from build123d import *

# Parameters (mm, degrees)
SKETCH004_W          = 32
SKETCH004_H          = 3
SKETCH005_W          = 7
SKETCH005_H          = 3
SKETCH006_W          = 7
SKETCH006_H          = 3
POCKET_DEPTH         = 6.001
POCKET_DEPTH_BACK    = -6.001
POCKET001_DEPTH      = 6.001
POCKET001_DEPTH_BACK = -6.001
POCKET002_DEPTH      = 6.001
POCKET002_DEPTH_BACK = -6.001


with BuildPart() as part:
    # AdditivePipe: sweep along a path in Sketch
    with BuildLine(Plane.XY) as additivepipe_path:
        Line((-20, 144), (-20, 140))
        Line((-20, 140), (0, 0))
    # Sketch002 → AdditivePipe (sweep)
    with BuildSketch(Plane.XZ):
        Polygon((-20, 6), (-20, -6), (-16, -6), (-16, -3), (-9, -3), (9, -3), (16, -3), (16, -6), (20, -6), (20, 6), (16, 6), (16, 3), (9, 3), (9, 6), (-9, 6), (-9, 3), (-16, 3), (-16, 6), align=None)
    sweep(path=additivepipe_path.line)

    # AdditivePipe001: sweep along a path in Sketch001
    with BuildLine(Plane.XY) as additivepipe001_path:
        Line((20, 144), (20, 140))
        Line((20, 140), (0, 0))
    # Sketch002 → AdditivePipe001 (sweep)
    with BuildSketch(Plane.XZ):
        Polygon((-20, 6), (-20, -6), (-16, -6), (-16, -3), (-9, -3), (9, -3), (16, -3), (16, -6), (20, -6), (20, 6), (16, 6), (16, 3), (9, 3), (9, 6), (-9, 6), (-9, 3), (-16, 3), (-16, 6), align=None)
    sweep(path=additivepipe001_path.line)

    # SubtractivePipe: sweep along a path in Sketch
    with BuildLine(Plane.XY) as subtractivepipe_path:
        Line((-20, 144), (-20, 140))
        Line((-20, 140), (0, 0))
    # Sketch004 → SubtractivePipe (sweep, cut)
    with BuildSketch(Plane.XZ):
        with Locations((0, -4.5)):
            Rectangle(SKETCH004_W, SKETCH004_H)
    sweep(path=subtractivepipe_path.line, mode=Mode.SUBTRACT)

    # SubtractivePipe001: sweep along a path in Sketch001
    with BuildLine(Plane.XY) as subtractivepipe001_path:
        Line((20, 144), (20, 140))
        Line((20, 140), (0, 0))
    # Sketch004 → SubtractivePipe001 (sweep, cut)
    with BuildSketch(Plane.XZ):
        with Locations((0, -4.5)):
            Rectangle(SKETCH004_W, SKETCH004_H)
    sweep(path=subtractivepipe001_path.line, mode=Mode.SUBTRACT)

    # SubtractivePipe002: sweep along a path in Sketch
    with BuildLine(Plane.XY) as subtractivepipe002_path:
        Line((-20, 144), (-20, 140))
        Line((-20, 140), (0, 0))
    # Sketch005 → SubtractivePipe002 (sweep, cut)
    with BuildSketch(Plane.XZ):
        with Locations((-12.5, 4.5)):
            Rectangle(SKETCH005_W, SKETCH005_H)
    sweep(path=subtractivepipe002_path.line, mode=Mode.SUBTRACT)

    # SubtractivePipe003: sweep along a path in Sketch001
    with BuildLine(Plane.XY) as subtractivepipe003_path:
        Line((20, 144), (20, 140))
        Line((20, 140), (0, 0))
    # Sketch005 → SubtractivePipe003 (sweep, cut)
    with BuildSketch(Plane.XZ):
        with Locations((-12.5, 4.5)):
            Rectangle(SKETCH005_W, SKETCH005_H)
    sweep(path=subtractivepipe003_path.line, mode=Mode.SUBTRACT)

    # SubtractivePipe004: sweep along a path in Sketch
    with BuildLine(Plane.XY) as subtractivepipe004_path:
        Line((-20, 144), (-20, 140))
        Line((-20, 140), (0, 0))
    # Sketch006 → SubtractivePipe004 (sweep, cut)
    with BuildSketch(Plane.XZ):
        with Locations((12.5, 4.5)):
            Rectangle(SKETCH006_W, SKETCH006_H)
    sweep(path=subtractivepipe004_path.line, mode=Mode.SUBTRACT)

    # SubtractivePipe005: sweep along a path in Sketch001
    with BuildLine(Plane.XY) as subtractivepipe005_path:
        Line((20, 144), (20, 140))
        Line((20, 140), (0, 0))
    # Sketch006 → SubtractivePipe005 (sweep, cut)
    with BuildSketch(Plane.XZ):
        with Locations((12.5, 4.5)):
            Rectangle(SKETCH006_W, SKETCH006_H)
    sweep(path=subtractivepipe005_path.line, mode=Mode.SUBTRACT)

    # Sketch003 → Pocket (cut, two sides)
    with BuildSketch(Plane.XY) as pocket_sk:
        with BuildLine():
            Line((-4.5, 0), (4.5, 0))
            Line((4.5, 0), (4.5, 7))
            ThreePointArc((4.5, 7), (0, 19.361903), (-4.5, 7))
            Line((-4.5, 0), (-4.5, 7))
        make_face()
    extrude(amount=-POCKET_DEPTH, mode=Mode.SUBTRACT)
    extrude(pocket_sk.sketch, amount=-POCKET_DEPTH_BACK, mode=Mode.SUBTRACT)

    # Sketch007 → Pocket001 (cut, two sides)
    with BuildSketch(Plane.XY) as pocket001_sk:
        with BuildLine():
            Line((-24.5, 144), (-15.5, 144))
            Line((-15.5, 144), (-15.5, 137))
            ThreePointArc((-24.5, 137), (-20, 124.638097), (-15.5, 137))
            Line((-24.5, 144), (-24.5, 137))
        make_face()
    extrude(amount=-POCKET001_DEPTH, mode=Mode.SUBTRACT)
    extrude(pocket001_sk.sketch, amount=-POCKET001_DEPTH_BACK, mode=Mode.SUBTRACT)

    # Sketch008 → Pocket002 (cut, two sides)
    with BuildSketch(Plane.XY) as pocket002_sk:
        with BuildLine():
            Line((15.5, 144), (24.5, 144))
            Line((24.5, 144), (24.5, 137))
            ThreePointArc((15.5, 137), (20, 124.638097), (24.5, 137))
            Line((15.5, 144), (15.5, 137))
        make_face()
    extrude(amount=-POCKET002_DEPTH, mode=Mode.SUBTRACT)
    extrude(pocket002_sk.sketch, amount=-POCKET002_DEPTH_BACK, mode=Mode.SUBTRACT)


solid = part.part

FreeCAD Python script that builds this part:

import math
import FreeCAD as App
import Part
import Sketcher

V = App.Vector
Q = App.Units.Quantity


def add_polygon(sketch, points):
    """Adds a closed chain of lines whose ends are joined by coincident constraints."""
    first, n = sketch.GeometryCount, len(points)
    for a, b in zip(points, points[1:] + points[:1]):
        sketch.addGeometry(Part.LineSegment(App.Vector(*a, 0), App.Vector(*b, 0)), False)
    for i in range(n):
        sketch.addConstraint(Sketcher.Constraint("Coincident", first + i, 2, first + (i + 1) % n, 1))

doc = App.newDocument("Part")
body = doc.addObject("PartDesign::Body", "Body")

# Sketch on XZ plane
sketch1 = body.newObject("Sketcher::SketchObject", "Sketch")
sketch1.AttachmentSupport = (doc.getObject("XZ_Plane"), [""])
sketch1.MapMode = "FlatFace"
add_polygon(sketch1, [(-20, 6), (-20, -6), (-16, -6), (-16, -3), (16, -3), (16, -6), (20, -6), (20, 6), (16, 6), (16, 3), (9, 3), (9, 6), (-9, 6), (-9, 3), (-16, 3), (-16, 6)])  # lines 0-15
sketch1.addConstraint([
    Sketcher.Constraint("Vertical", 0),
    Sketcher.Constraint("Horizontal", 1),
    Sketcher.Constraint("Vertical", 2),
    Sketcher.Constraint("Horizontal", 3),
    Sketcher.Constraint("Vertical", 4),
    Sketcher.Constraint("Horizontal", 5),
    Sketcher.Constraint("Vertical", 6),
    Sketcher.Constraint("Horizontal", 7),
    Sketcher.Constraint("Vertical", 8),
    Sketcher.Constraint("Horizontal", 9),
    Sketcher.Constraint("Vertical", 10),
    Sketcher.Constraint("Horizontal", 11),
    Sketcher.Constraint("Vertical", 12),
    Sketcher.Constraint("Horizontal", 13),
    Sketcher.Constraint("Vertical", 14),
    Sketcher.Constraint("Horizontal", 15),
    Sketcher.Constraint("Symmetric", 0, 2, 6, 2, -1, 1),
    Sketcher.Constraint("Symmetric", 2, 2, 8, 2, -1, 1),
    Sketcher.Constraint("Symmetric", 3, 2, 13, 2, -1, 1),
    Sketcher.Constraint("Symmetric", 1, 2, 4, 2, -2),
    Sketcher.Constraint("Horizontal", 7, 2, 10, 2),
    Sketcher.Constraint("Horizontal", 11, 2, 14, 2),
    Sketcher.Constraint("Equal", 9, 13),
    Sketcher.Constraint("DistanceX", 1, 1, 1, 2, Q("4 mm")),
    Sketcher.Constraint("DistanceX", 3, 1, 3, 2, Q("32 mm")),
    Sketcher.Constraint("DistanceX", 9, 2, 9, 1, Q("7 mm")),
    Sketcher.Constraint("DistanceY", 0, 2, 0, 1, Q("12 mm")),
    Sketcher.Constraint("DistanceY", 2, 1, 2, 2, Q("3 mm")),
])

# Sketch on XY plane
sketch2 = body.newObject("Sketcher::SketchObject", "Sketch001")
sketch2.AttachmentSupport = (doc.getObject("XY_Plane"), [""])
sketch2.MapMode = "FlatFace"
sketch2.addGeometry([
    Part.LineSegment(V(-20, 144, 0), V(-20, 140, 0)),
    Part.LineSegment(V(-20, 140, 0), V(0, 0, 0)),
], False)
sketch2.addConstraint([
    Sketcher.Constraint("Coincident", 0, 2, 1, 1),
    Sketcher.Constraint("Vertical", 0),
    Sketcher.Constraint("Coincident", 1, 2, -1, 1),
    Sketcher.Constraint("DistanceY", 0, 2, 0, 1, Q("4 mm")),
    Sketcher.Constraint("DistanceX", 0, 1, -1, 1, Q("20 mm")),
    Sketcher.Constraint("DistanceY", -1, 1, 0, 1, Q("144 mm")),
])
doc.recompute()

additivepipe = body.newObject("PartDesign::AdditivePipe", "AdditivePipe")
additivepipe.Profile = sketch1
additivepipe.Spine = (sketch2, ["Edge1", "Edge2"])

# Sketch on XZ plane
sketch3 = body.newObject("Sketcher::SketchObject", "Sketch002")
sketch3.AttachmentSupport = (doc.getObject("XZ_Plane"), [""])
sketch3.MapMode = "FlatFace"
add_polygon(sketch3, [(-20, 6), (-20, -6), (-16, -6), (-16, -3), (16, -3), (16, -6), (20, -6), (20, 6), (16, 6), (16, 3), (9, 3), (9, 6), (-9, 6), (-9, 3), (-16, 3), (-16, 6)])  # lines 0-15
sketch3.addConstraint([
    Sketcher.Constraint("Vertical", 0),
    Sketcher.Constraint("Horizontal", 1),
    Sketcher.Constraint("Vertical", 2),
    Sketcher.Constraint("Horizontal", 3),
    Sketcher.Constraint("Vertical", 4),
    Sketcher.Constraint("Horizontal", 5),
    Sketcher.Constraint("Vertical", 6),
    Sketcher.Constraint("Horizontal", 7),
    Sketcher.Constraint("Vertical", 8),
    Sketcher.Constraint("Horizontal", 9),
    Sketcher.Constraint("Vertical", 10),
    Sketcher.Constraint("Horizontal", 11),
    Sketcher.Constraint("Vertical", 12),
    Sketcher.Constraint("Horizontal", 13),
    Sketcher.Constraint("Vertical", 14),
    Sketcher.Constraint("Horizontal", 15),
    Sketcher.Constraint("Symmetric", 0, 2, 6, 2, -1, 1),
    Sketcher.Constraint("Symmetric", 2, 2, 8, 2, -1, 1),
    Sketcher.Constraint("Symmetric", 3, 2, 13, 2, -1, 1),
    Sketcher.Constraint("Symmetric", 1, 2, 4, 2, -2),
    Sketcher.Constraint("Horizontal", 7, 2, 10, 2),
    Sketcher.Constraint("Horizontal", 11, 2, 14, 2),
    Sketcher.Constraint("Equal", 9, 13),
    Sketcher.Constraint("DistanceX", 1, 1, 1, 2, Q("4 mm")),
    Sketcher.Constraint("DistanceX", 3, 1, 3, 2, Q("32 mm")),
    Sketcher.Constraint("DistanceX", 9, 2, 9, 1, Q("7 mm")),
    Sketcher.Constraint("DistanceY", 0, 2, 0, 1, Q("12 mm")),
    Sketcher.Constraint("DistanceY", 2, 1, 2, 2, Q("3 mm")),
])

# Sketch on XY plane
sketch4 = body.newObject("Sketcher::SketchObject", "Sketch003")
sketch4.AttachmentSupport = (doc.getObject("XY_Plane"), [""])
sketch4.MapMode = "FlatFace"
sketch4.addGeometry([
    Part.LineSegment(V(20, 144, 0), V(20, 140, 0)),
    Part.LineSegment(V(20, 140, 0), V(0, 0, 0)),
], False)
sketch4.addConstraint([
    Sketcher.Constraint("Coincident", 0, 2, 1, 1),
    Sketcher.Constraint("Vertical", 0),
    Sketcher.Constraint("Coincident", 1, 2, -1, 1),
    Sketcher.Constraint("DistanceY", 0, 2, 0, 1, Q("4 mm")),
    Sketcher.Constraint("DistanceX", -1, 1, 0, 1, Q("20 mm")),
    Sketcher.Constraint("DistanceY", -1, 1, 0, 1, Q("144 mm")),
])
doc.recompute()

additivepipe2 = body.newObject("PartDesign::AdditivePipe", "AdditivePipe001")
additivepipe2.Profile = sketch3
additivepipe2.Spine = (sketch4, ["Edge1", "Edge2"])

# Sketch on XZ plane
sketch5 = body.newObject("Sketcher::SketchObject", "Sketch004")
sketch5.AttachmentSupport = (doc.getObject("XZ_Plane"), [""])
sketch5.MapMode = "FlatFace"
add_polygon(sketch5, [(-16, -3), (-16, -6), (16, -6), (16, -3)])  # lines 0-3
sketch5.addConstraint([
    Sketcher.Constraint("Vertical", 0),
    Sketcher.Constraint("Horizontal", 1),
    Sketcher.Constraint("Vertical", 2),
    Sketcher.Constraint("Horizontal", 3),
    Sketcher.Constraint("DistanceX", 1, 1, 1, 2, Q("32 mm")),
    Sketcher.Constraint("DistanceY", 0, 2, 0, 1, Q("3 mm")),
    Sketcher.Constraint("DistanceX", 0, 2, -1, 1, Q("16 mm")),
    Sketcher.Constraint("DistanceY", 0, 2, -1, 1, Q("6 mm")),
])

# Sketch on XY plane
sketch6 = body.newObject("Sketcher::SketchObject", "Sketch005")
sketch6.AttachmentSupport = (doc.getObject("XY_Plane"), [""])
sketch6.MapMode = "FlatFace"
sketch6.addGeometry([
    Part.LineSegment(V(-20, 144, 0), V(-20, 140, 0)),
    Part.LineSegment(V(-20, 140, 0), V(0, 0, 0)),
], False)
sketch6.addConstraint([
    Sketcher.Constraint("Coincident", 0, 2, 1, 1),
    Sketcher.Constraint("Vertical", 0),
    Sketcher.Constraint("Coincident", 1, 2, -1, 1),
    Sketcher.Constraint("DistanceY", 0, 2, 0, 1, Q("4 mm")),
    Sketcher.Constraint("DistanceX", 0, 1, -1, 1, Q("20 mm")),
    Sketcher.Constraint("DistanceY", -1, 1, 0, 1, Q("144 mm")),
])
doc.recompute()

subtractivepipe = body.newObject("PartDesign::SubtractivePipe", "SubtractivePipe")
subtractivepipe.Profile = sketch5
subtractivepipe.Spine = (sketch6, ["Edge1", "Edge2"])

# Sketch on XZ plane
sketch7 = body.newObject("Sketcher::SketchObject", "Sketch006")
sketch7.AttachmentSupport = (doc.getObject("XZ_Plane"), [""])
sketch7.MapMode = "FlatFace"
add_polygon(sketch7, [(-16, -3), (-16, -6), (16, -6), (16, -3)])  # lines 0-3
sketch7.addConstraint([
    Sketcher.Constraint("Vertical", 0),
    Sketcher.Constraint("Horizontal", 1),
    Sketcher.Constraint("Vertical", 2),
    Sketcher.Constraint("Horizontal", 3),
    Sketcher.Constraint("DistanceX", 1, 1, 1, 2, Q("32 mm")),
    Sketcher.Constraint("DistanceY", 0, 2, 0, 1, Q("3 mm")),
    Sketcher.Constraint("DistanceX", 0, 2, -1, 1, Q("16 mm")),
    Sketcher.Constraint("DistanceY", 0, 2, -1, 1, Q("6 mm")),
])

# Sketch on XY plane
sketch8 = body.newObject("Sketcher::SketchObject", "Sketch007")
sketch8.AttachmentSupport = (doc.getObject("XY_Plane"), [""])
sketch8.MapMode = "FlatFace"
sketch8.addGeometry([
    Part.LineSegment(V(20, 144, 0), V(20, 140, 0)),
    Part.LineSegment(V(20, 140, 0), V(0, 0, 0)),
], False)
sketch8.addConstraint([
    Sketcher.Constraint("Coincident", 0, 2, 1, 1),
    Sketcher.Constraint("Vertical", 0),
    Sketcher.Constraint("Coincident", 1, 2, -1, 1),
    Sketcher.Constraint("DistanceY", 0, 2, 0, 1, Q("4 mm")),
    Sketcher.Constraint("DistanceX", -1, 1, 0, 1, Q("20 mm")),
    Sketcher.Constraint("DistanceY", -1, 1, 0, 1, Q("144 mm")),
])
doc.recompute()

subtractivepipe2 = body.newObject("PartDesign::SubtractivePipe", "SubtractivePipe001")
subtractivepipe2.Profile = sketch7
subtractivepipe2.Spine = (sketch8, ["Edge1", "Edge2"])

# Sketch on XZ plane
sketch9 = body.newObject("Sketcher::SketchObject", "Sketch008")
sketch9.AttachmentSupport = (doc.getObject("XZ_Plane"), [""])
sketch9.MapMode = "FlatFace"
add_polygon(sketch9, [(-16, 6), (-16, 3), (-9, 3), (-9, 6)])  # lines 0-3
sketch9.addConstraint([
    Sketcher.Constraint("Vertical", 0),
    Sketcher.Constraint("Horizontal", 1),
    Sketcher.Constraint("Vertical", 2),
    Sketcher.Constraint("Horizontal", 3),
    Sketcher.Constraint("DistanceX", 1, 1, 1, 2, Q("7 mm")),
    Sketcher.Constraint("DistanceY", 0, 2, 0, 1, Q("3 mm")),
    Sketcher.Constraint("DistanceX", 0, 2, -1, 1, Q("16 mm")),
    Sketcher.Constraint("DistanceY", -1, 1, 0, 2, Q("3 mm")),
])

# Sketch on XY plane
sketch10 = body.newObject("Sketcher::SketchObject", "Sketch009")
sketch10.AttachmentSupport = (doc.getObject("XY_Plane"), [""])
sketch10.MapMode = "FlatFace"
sketch10.addGeometry([
    Part.LineSegment(V(-20, 144, 0), V(-20, 140, 0)),
    Part.LineSegment(V(-20, 140, 0), V(0, 0, 0)),
], False)
sketch10.addConstraint([
    Sketcher.Constraint("Coincident", 0, 2, 1, 1),
    Sketcher.Constraint("Vertical", 0),
    Sketcher.Constraint("Coincident", 1, 2, -1, 1),
    Sketcher.Constraint("DistanceY", 0, 2, 0, 1, Q("4 mm")),
    Sketcher.Constraint("DistanceX", 0, 1, -1, 1, Q("20 mm")),
    Sketcher.Constraint("DistanceY", -1, 1, 0, 1, Q("144 mm")),
])
doc.recompute()

subtractivepipe3 = body.newObject("PartDesign::SubtractivePipe", "SubtractivePipe002")
subtractivepipe3.Profile = sketch9
subtractivepipe3.Spine = (sketch10, ["Edge1", "Edge2"])

# Sketch on XZ plane
sketch11 = body.newObject("Sketcher::SketchObject", "Sketch010")
sketch11.AttachmentSupport = (doc.getObject("XZ_Plane"), [""])
sketch11.MapMode = "FlatFace"
add_polygon(sketch11, [(-16, 6), (-16, 3), (-9, 3), (-9, 6)])  # lines 0-3
sketch11.addConstraint([
    Sketcher.Constraint("Vertical", 0),
    Sketcher.Constraint("Horizontal", 1),
    Sketcher.Constraint("Vertical", 2),
    Sketcher.Constraint("Horizontal", 3),
    Sketcher.Constraint("DistanceX", 1, 1, 1, 2, Q("7 mm")),
    Sketcher.Constraint("DistanceY", 0, 2, 0, 1, Q("3 mm")),
    Sketcher.Constraint("DistanceX", 0, 2, -1, 1, Q("16 mm")),
    Sketcher.Constraint("DistanceY", -1, 1, 0, 2, Q("3 mm")),
])

# Sketch on XY plane
sketch12 = body.newObject("Sketcher::SketchObject", "Sketch011")
sketch12.AttachmentSupport = (doc.getObject("XY_Plane"), [""])
sketch12.MapMode = "FlatFace"
sketch12.addGeometry([
    Part.LineSegment(V(20, 144, 0), V(20, 140, 0)),
    Part.LineSegment(V(20, 140, 0), V(0, 0, 0)),
], False)
sketch12.addConstraint([
    Sketcher.Constraint("Coincident", 0, 2, 1, 1),
    Sketcher.Constraint("Vertical", 0),
    Sketcher.Constraint("Coincident", 1, 2, -1, 1),
    Sketcher.Constraint("DistanceY", 0, 2, 0, 1, Q("4 mm")),
    Sketcher.Constraint("DistanceX", -1, 1, 0, 1, Q("20 mm")),
    Sketcher.Constraint("DistanceY", -1, 1, 0, 1, Q("144 mm")),
])
doc.recompute()

subtractivepipe4 = body.newObject("PartDesign::SubtractivePipe", "SubtractivePipe003")
subtractivepipe4.Profile = sketch11
subtractivepipe4.Spine = (sketch12, ["Edge1", "Edge2"])

# Sketch on XZ plane
sketch13 = body.newObject("Sketcher::SketchObject", "Sketch012")
sketch13.AttachmentSupport = (doc.getObject("XZ_Plane"), [""])
sketch13.MapMode = "FlatFace"
add_polygon(sketch13, [(9, 6), (9, 3), (16, 3), (16, 6)])  # lines 0-3
sketch13.addConstraint([
    Sketcher.Constraint("Vertical", 0),
    Sketcher.Constraint("Horizontal", 1),
    Sketcher.Constraint("Vertical", 2),
    Sketcher.Constraint("Horizontal", 3),
    Sketcher.Constraint("DistanceX", 1, 1, 1, 2, Q("7 mm")),
    Sketcher.Constraint("DistanceY", 0, 2, 0, 1, Q("3 mm")),
    Sketcher.Constraint("DistanceX", -1, 1, 0, 2, Q("9 mm")),
    Sketcher.Constraint("DistanceY", -1, 1, 0, 2, Q("3 mm")),
])

# Sketch on XY plane
sketch14 = body.newObject("Sketcher::SketchObject", "Sketch013")
sketch14.AttachmentSupport = (doc.getObject("XY_Plane"), [""])
sketch14.MapMode = "FlatFace"
sketch14.addGeometry([
    Part.LineSegment(V(-20, 144, 0), V(-20, 140, 0)),
    Part.LineSegment(V(-20, 140, 0), V(0, 0, 0)),
], False)
sketch14.addConstraint([
    Sketcher.Constraint("Coincident", 0, 2, 1, 1),
    Sketcher.Constraint("Vertical", 0),
    Sketcher.Constraint("Coincident", 1, 2, -1, 1),
    Sketcher.Constraint("DistanceY", 0, 2, 0, 1, Q("4 mm")),
    Sketcher.Constraint("DistanceX", 0, 1, -1, 1, Q("20 mm")),
    Sketcher.Constraint("DistanceY", -1, 1, 0, 1, Q("144 mm")),
])
doc.recompute()

subtractivepipe5 = body.newObject("PartDesign::SubtractivePipe", "SubtractivePipe004")
subtractivepipe5.Profile = sketch13
subtractivepipe5.Spine = (sketch14, ["Edge1", "Edge2"])

# Sketch on XZ plane
sketch15 = body.newObject("Sketcher::SketchObject", "Sketch014")
sketch15.AttachmentSupport = (doc.getObject("XZ_Plane"), [""])
sketch15.MapMode = "FlatFace"
add_polygon(sketch15, [(9, 6), (9, 3), (16, 3), (16, 6)])  # lines 0-3
sketch15.addConstraint([
    Sketcher.Constraint("Vertical", 0),
    Sketcher.Constraint("Horizontal", 1),
    Sketcher.Constraint("Vertical", 2),
    Sketcher.Constraint("Horizontal", 3),
    Sketcher.Constraint("DistanceX", 1, 1, 1, 2, Q("7 mm")),
    Sketcher.Constraint("DistanceY", 0, 2, 0, 1, Q("3 mm")),
    Sketcher.Constraint("DistanceX", -1, 1, 0, 2, Q("9 mm")),
    Sketcher.Constraint("DistanceY", -1, 1, 0, 2, Q("3 mm")),
])

# Sketch on XY plane
sketch16 = body.newObject("Sketcher::SketchObject", "Sketch015")
sketch16.AttachmentSupport = (doc.getObject("XY_Plane"), [""])
sketch16.MapMode = "FlatFace"
sketch16.addGeometry([
    Part.LineSegment(V(20, 144, 0), V(20, 140, 0)),
    Part.LineSegment(V(20, 140, 0), V(0, 0, 0)),
], False)
sketch16.addConstraint([
    Sketcher.Constraint("Coincident", 0, 2, 1, 1),
    Sketcher.Constraint("Vertical", 0),
    Sketcher.Constraint("Coincident", 1, 2, -1, 1),
    Sketcher.Constraint("DistanceY", 0, 2, 0, 1, Q("4 mm")),
    Sketcher.Constraint("DistanceX", -1, 1, 0, 1, Q("20 mm")),
    Sketcher.Constraint("DistanceY", -1, 1, 0, 1, Q("144 mm")),
])
doc.recompute()

subtractivepipe6 = body.newObject("PartDesign::SubtractivePipe", "SubtractivePipe005")
subtractivepipe6.Profile = sketch15
subtractivepipe6.Spine = (sketch16, ["Edge1", "Edge2"])

# Sketch on XY plane
sketch17 = body.newObject("Sketcher::SketchObject", "Sketch016")
sketch17.AttachmentSupport = (doc.getObject("XY_Plane"), [""])
sketch17.MapMode = "FlatFace"
sketch17.addGeometry([
    Part.LineSegment(V(-4, 0, 0), V(4, 0, 0)),
    Part.LineSegment(V(4, 0, 0), V(4, 7, 0)),
    Part.ArcOfCircle(Part.Circle(V(0, 12, 0), V(0, 0, 1), 7), math.radians(-50), math.radians(230)),
    Part.LineSegment(V(-4, 7, 0), V(-4, 0, 0)),
], False)
sketch17.addConstraint([
    Sketcher.Constraint("Coincident", 0, 2, 1, 1),
    Sketcher.Constraint("Coincident", 1, 2, 2, 1),
    Sketcher.Constraint("Coincident", 2, 2, 3, 1),
    Sketcher.Constraint("Coincident", 3, 2, 0, 1),
    Sketcher.Constraint("Horizontal", 0),
    Sketcher.Constraint("Vertical", 1),
    Sketcher.Constraint("Vertical", 3),
    Sketcher.Constraint("Symmetric", 0, 2, 3, 2, -1, 1),
    Sketcher.Constraint("PointOnObject", 2, 3, -2),
    Sketcher.Constraint("Radius", 2, Q("7 mm")),
    Sketcher.Constraint("DistanceX", 0, 1, 0, 2, Q("9 mm")),
    Sketcher.Constraint("DistanceY", 1, 1, 1, 2, Q("7 mm")),
])
pocket1 = body.newObject("PartDesign::Pocket", "Pocket")
pocket1.Profile = sketch17
pocket1.Type = "ThroughAll"
pocket1.Midplane = True

# Sketch on XY plane
sketch18 = body.newObject("Sketcher::SketchObject", "Sketch017")
sketch18.AttachmentSupport = (doc.getObject("XY_Plane"), [""])
sketch18.MapMode = "FlatFace"
sketch18.addGeometry([
    Part.LineSegment(V(-16, 144, 0), V(-24, 144, 0)),
    Part.LineSegment(V(-24, 144, 0), V(-24, 137, 0)),
    Part.ArcOfCircle(Part.Circle(V(-20, 132, 0), V(0, 0, 1), 7), math.radians(130), math.radians(410)),
    Part.LineSegment(V(-16, 137, 0), V(-16, 144, 0)),
], False)
sketch18.addConstraint([
    Sketcher.Constraint("Coincident", 0, 2, 1, 1),
    Sketcher.Constraint("Coincident", 1, 2, 2, 1),
    Sketcher.Constraint("Coincident", 2, 2, 3, 1),
    Sketcher.Constraint("Coincident", 3, 2, 0, 1),
    Sketcher.Constraint("Horizontal", 0),
    Sketcher.Constraint("Vertical", 1),
    Sketcher.Constraint("Vertical", 3),
    Sketcher.Constraint("Horizontal", 1, 2, 2, 2),
    Sketcher.Constraint("Radius", 2, Q("7 mm")),
    Sketcher.Constraint("DistanceX", 0, 2, 0, 1, Q("9 mm")),
    Sketcher.Constraint("DistanceY", 1, 2, 1, 1, Q("7 mm")),
    Sketcher.Constraint("DistanceX", 2, 3, -1, 1, Q("20 mm")),
    Sketcher.Constraint("DistanceY", -1, 1, 0, 2, Q("144 mm")),
])
pocket2 = body.newObject("PartDesign::Pocket", "Pocket001")
pocket2.Profile = sketch18
pocket2.Type = "ThroughAll"
pocket2.Midplane = True

# Sketch on XY plane
sketch19 = body.newObject("Sketcher::SketchObject", "Sketch018")
sketch19.AttachmentSupport = (doc.getObject("XY_Plane"), [""])
sketch19.MapMode = "FlatFace"
sketch19.addGeometry([
    Part.LineSegment(V(24, 144, 0), V(16, 144, 0)),
    Part.LineSegment(V(16, 144, 0), V(16, 137, 0)),
    Part.ArcOfCircle(Part.Circle(V(20, 132, 0), V(0, 0, 1), 7), math.radians(130), math.radians(410)),
    Part.LineSegment(V(24, 137, 0), V(24, 144, 0)),
], False)
sketch19.addConstraint([
    Sketcher.Constraint("Coincident", 0, 2, 1, 1),
    Sketcher.Constraint("Coincident", 1, 2, 2, 1),
    Sketcher.Constraint("Coincident", 2, 2, 3, 1),
    Sketcher.Constraint("Coincident", 3, 2, 0, 1),
    Sketcher.Constraint("Horizontal", 0),
    Sketcher.Constraint("Vertical", 1),
    Sketcher.Constraint("Vertical", 3),
    Sketcher.Constraint("Horizontal", 1, 2, 2, 2),
    Sketcher.Constraint("Radius", 2, Q("7 mm")),
    Sketcher.Constraint("DistanceX", 0, 2, 0, 1, Q("9 mm")),
    Sketcher.Constraint("DistanceY", 1, 2, 1, 1, Q("7 mm")),
    Sketcher.Constraint("DistanceX", -1, 1, 2, 3, Q("20 mm")),
    Sketcher.Constraint("DistanceY", -1, 1, 0, 2, Q("144 mm")),
])
pocket3 = body.newObject("PartDesign::Pocket", "Pocket002")
pocket3.Profile = sketch19
pocket3.Type = "ThroughAll"
pocket3.Midplane = True

doc.recompute()
